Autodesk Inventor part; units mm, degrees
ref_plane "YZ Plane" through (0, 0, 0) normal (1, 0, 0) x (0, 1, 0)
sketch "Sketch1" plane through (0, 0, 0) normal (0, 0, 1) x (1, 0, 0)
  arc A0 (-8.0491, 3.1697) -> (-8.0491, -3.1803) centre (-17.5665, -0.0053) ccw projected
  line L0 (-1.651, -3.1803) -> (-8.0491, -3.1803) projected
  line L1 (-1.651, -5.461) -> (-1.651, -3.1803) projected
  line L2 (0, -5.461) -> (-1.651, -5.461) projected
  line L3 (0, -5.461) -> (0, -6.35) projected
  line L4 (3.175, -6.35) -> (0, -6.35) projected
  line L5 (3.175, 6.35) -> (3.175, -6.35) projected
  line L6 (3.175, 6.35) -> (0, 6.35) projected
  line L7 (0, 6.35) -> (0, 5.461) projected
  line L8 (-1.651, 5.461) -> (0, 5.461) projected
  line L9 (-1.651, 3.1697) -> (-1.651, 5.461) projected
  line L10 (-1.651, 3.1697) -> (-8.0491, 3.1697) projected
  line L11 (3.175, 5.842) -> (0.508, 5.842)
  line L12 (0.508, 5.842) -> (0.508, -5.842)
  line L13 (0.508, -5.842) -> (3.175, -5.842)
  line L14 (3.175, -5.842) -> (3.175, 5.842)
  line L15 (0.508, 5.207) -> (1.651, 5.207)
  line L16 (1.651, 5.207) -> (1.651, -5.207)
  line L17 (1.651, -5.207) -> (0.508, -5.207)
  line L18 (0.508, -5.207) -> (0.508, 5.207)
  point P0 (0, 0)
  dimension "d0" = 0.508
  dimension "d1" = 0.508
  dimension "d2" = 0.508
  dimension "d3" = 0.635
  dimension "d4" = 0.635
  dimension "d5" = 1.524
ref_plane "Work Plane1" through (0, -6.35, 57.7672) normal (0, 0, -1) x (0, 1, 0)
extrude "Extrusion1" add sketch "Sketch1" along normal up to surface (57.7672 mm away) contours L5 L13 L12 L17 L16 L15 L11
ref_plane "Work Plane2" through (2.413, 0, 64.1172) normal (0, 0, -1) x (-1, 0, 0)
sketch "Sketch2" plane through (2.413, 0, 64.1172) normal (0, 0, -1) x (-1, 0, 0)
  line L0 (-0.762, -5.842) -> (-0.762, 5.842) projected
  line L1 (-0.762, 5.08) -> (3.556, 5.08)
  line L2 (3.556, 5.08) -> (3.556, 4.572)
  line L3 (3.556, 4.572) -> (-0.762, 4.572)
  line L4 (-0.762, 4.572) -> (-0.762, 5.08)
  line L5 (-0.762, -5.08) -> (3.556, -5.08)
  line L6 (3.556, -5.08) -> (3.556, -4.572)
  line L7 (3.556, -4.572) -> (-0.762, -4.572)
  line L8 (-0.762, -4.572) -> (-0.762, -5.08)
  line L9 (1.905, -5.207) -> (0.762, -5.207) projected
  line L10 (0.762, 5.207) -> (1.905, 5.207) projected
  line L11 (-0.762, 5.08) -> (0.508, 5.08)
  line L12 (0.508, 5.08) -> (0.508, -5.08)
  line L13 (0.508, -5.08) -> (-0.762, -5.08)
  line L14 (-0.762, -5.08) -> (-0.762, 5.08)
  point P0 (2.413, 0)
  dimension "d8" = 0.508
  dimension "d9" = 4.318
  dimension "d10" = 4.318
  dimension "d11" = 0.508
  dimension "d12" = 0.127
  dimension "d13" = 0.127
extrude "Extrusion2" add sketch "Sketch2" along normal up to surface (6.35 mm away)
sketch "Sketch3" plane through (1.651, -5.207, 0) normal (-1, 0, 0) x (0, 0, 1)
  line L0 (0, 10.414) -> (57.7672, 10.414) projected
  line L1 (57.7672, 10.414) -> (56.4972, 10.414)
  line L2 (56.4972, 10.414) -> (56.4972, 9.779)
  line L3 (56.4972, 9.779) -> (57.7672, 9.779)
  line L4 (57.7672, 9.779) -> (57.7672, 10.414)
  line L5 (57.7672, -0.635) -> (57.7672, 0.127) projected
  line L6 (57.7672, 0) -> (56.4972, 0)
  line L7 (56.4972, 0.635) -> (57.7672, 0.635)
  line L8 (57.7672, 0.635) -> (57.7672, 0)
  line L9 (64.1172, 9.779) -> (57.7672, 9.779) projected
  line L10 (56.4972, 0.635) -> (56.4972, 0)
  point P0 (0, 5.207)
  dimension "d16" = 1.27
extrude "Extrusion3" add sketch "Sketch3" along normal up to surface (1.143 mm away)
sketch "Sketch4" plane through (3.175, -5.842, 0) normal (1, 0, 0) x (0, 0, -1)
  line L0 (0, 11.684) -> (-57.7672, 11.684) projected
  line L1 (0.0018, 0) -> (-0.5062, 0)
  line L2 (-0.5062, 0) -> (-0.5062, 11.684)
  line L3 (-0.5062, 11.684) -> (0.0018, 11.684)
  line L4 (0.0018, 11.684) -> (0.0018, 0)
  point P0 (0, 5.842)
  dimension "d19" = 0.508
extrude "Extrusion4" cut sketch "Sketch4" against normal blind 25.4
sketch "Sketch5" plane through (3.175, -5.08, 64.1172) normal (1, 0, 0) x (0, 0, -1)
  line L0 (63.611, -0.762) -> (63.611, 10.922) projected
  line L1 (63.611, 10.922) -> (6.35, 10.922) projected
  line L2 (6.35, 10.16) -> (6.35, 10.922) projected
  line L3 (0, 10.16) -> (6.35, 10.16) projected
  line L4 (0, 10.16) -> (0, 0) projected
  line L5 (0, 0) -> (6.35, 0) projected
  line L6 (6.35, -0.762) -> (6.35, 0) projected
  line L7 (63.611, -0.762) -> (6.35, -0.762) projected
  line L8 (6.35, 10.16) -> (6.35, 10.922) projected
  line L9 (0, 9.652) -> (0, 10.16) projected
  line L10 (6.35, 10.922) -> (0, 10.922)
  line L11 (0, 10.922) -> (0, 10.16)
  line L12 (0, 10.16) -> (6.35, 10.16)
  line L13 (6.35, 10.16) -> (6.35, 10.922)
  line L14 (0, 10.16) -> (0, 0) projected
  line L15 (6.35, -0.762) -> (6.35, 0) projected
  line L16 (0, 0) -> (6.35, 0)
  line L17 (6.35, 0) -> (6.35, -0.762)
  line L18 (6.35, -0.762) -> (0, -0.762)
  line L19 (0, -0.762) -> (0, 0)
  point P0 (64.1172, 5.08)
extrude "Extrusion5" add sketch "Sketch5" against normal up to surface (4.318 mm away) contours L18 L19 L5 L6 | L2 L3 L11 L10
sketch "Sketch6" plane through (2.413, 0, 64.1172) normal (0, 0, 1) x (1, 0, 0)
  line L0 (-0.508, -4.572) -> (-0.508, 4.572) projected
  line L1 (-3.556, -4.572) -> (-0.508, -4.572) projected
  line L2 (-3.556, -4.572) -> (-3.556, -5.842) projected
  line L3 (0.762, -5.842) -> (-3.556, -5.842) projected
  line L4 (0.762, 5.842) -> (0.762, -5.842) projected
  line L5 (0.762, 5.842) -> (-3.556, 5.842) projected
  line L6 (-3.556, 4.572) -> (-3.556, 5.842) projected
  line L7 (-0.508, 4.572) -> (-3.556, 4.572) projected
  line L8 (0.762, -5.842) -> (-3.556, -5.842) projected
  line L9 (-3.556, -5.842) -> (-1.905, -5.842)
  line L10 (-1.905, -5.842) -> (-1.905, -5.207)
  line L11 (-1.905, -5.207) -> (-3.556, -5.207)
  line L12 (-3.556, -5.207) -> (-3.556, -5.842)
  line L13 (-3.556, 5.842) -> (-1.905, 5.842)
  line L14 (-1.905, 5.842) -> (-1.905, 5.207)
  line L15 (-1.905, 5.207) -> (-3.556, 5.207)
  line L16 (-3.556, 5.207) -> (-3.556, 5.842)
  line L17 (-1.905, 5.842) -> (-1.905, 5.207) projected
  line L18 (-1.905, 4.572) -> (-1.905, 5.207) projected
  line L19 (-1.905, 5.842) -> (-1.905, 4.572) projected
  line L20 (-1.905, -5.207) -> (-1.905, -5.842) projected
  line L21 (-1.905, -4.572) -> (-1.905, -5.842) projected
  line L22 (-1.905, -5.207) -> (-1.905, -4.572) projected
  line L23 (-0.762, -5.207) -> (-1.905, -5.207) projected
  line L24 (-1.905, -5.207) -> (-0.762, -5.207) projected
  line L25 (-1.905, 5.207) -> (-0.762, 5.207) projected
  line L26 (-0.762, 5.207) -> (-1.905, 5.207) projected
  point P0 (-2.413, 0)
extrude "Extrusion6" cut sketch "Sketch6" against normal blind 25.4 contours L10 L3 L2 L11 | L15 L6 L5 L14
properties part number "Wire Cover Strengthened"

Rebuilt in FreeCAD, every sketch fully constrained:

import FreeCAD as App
import Part
import Sketcher

V = App.Vector
Q = App.Units.Quantity

doc = App.newDocument("Part")
body = doc.addObject("PartDesign::Body", "Body")

# Sketch on XY plane
sketch1 = doc.addObject("Sketcher::SketchObject", "Sketch")
body.addObject(sketch1)
sketch1.AttachmentSupport = (doc.XY_Plane, [""])
sketch1.MapMode = "FlatFace"
sketch1.addGeometry([
    Part.LineSegment(V(3.2, -5.8, 0), V(3.2, 5.8, 0)),  # 0
    Part.LineSegment(V(3.2, 5.8, 0), V(0.5, 5.8, 0)),  # 1
    Part.LineSegment(V(0.5, 5.8, 0), V(0.5, 5.2, 0)),  # 2
    Part.LineSegment(V(0.5, 5.2, 0), V(1.7, 5.2, 0)),  # 3
    Part.LineSegment(V(1.7, 5.2, 0), V(1.7, -5.2, 0)),  # 4
    Part.LineSegment(V(1.7, -5.2, 0), V(0.5, -5.2, 0)),  # 5
    Part.LineSegment(V(0.5, -5.2, 0), V(0.5, -5.8, 0)),  # 6
    Part.LineSegment(V(0.5, -5.8, 0), V(3.2, -5.8, 0)),  # 7
], False)
sketch1.addConstraint([
    Sketcher.Constraint("Coincident", 0, 2, 1, 1),
    Sketcher.Constraint("Coincident", 1, 2, 2, 1),
    Sketcher.Constraint("Coincident", 2, 2, 3, 1),
    Sketcher.Constraint("Coincident", 3, 2, 4, 1),
    Sketcher.Constraint("Coincident", 4, 2, 5, 1),
    Sketcher.Constraint("Coincident", 5, 2, 6, 1),
    Sketcher.Constraint("Coincident", 6, 2, 7, 1),
    Sketcher.Constraint("Coincident", 7, 2, 0, 1),
    Sketcher.Constraint("Vertical", 0),
    Sketcher.Constraint("Horizontal", 1),
    Sketcher.Constraint("Vertical", 2),
    Sketcher.Constraint("Horizontal", 3),
    Sketcher.Constraint("Vertical", 4),
    Sketcher.Constraint("Horizontal", 5),
    Sketcher.Constraint("Vertical", 6),
    Sketcher.Constraint("Horizontal", 7),
    Sketcher.Constraint("Symmetric", 2, 2, 5, 2, -1),
    Sketcher.Constraint("Equal", 2, 6),
    Sketcher.Constraint("DistanceY", 2, 2, 2, 1, Q("0.025 in")),
    Sketcher.Constraint("DistanceX", -1, 1, 1, 2, Q("0.02 in")),
    Sketcher.Constraint("DistanceX", 3, 2, 0, 2, Q("0.06 in")),
    Sketcher.Constraint("DistanceY", 0, 1, 0, 2, Q("0.46 in")),
    Sketcher.Constraint("DistanceX", 1, 2, 1, 1, Q("0.105 in")),
])
pad1 = doc.addObject("PartDesign::Pad", "Pad")
body.addObject(pad1)
pad1.Profile = sketch1
pad1.Length = Q("2.2742992 in")

# Sketch on XY plane
sketch2 = doc.addObject("Sketcher::SketchObject", "Sketch001")
body.addObject(sketch2)
sketch2.AttachmentSupport = (doc.XY_Plane, [""])
sketch2.MapMode = "FlatFace"
sketch2.AttachmentOffset = App.Placement(V(0, 0, 2.5242992 * 25.4), App.Rotation())
sketch2.addGeometry([
    Part.LineSegment(V(3.2, -5.1, 0), V(-1.1, -5.1, 0)),  # 0
    Part.LineSegment(V(-1.1, -5.1, 0), V(-1.1, -4.6, 0)),  # 1
    Part.LineSegment(V(-1.1, -4.6, 0), V(1.9, -4.6, 0)),  # 2
    Part.LineSegment(V(1.9, -4.6, 0), V(1.9, 4.6, 0)),  # 3
    Part.LineSegment(V(1.9, 4.6, 0), V(-1.1, 4.6, 0)),  # 4
    Part.LineSegment(V(-1.1, 4.6, 0), V(-1.1, 5.1, 0)),  # 5
    Part.LineSegment(V(-1.1, 5.1, 0), V(3.2, 5.1, 0)),  # 6
    Part.LineSegment(V(3.2, 5.1, 0), V(3.2, -5.1, 0)),  # 7
], False)
sketch2.addConstraint([
    Sketcher.Constraint("Coincident", 0, 2, 1, 1),
    Sketcher.Constraint("Coincident", 1, 2, 2, 1),
    Sketcher.Constraint("Coincident", 2, 2, 3, 1),
    Sketcher.Constraint("Coincident", 3, 2, 4, 1),
    Sketcher.Constraint("Coincident", 4, 2, 5, 1),
    Sketcher.Constraint("Coincident", 5, 2, 6, 1),
    Sketcher.Constraint("Coincident", 6, 2, 7, 1),
    Sketcher.Constraint("Coincident", 7, 2, 0, 1),
    Sketcher.Constraint("Horizontal", 0),
    Sketcher.Constraint("Vertical", 1),
    Sketcher.Constraint("Horizontal", 2),
    Sketcher.Constraint("Vertical", 3),
    Sketcher.Constraint("Horizontal", 4),
    Sketcher.Constraint("Vertical", 5),
    Sketcher.Constraint("Horizontal", 6),
    Sketcher.Constraint("Vertical", 7),
    Sketcher.Constraint("Symmetric", 1, 2, 4, 2, -1),
    Sketcher.Constraint("Equal", 1, 5),
    Sketcher.Constraint("DistanceX", 0, 2, 0, 1, Q("0.17 in")),
    Sketcher.Constraint("DistanceY", 1, 1, 1, 2, Q("0.02 in")),
    Sketcher.Constraint("DistanceY", 7, 2, 7, 1, Q("0.4 in")),
    Sketcher.Constraint("DistanceX", 2, 1, 2, 2, Q("0.12 in")),
    Sketcher.Constraint("DistanceX", 0, 2, -1, 1, Q("0.045 in")),
])
pad2 = doc.addObject("PartDesign::Pad", "Pad001")
body.addObject(pad2)
pad2.Profile = sketch2
pad2.Length = Q("0.25 in")
pad2.Reversed = True

# Sketch on YZ plane
sketch3 = doc.addObject("Sketcher::SketchObject", "Sketch002")
body.addObject(sketch3)
sketch3.AttachmentSupport = (doc.YZ_Plane, [""])
sketch3.MapMode = "FlatFace"
sketch3.AttachmentOffset = App.Placement(V(0, 0, 0.065 * 25.4), App.Rotation())
sketch3.addGeometry([
    Part.LineSegment(V(5.2, 57.8, 0), V(5.2, 56.5, 0)),  # 0
    Part.LineSegment(V(5.2, 56.5, 0), V(4.6, 56.5, 0)),  # 1
    Part.LineSegment(V(4.6, 56.5, 0), V(4.6, 57.8, 0)),  # 2
    Part.LineSegment(V(4.6, 57.8, 0), V(5.2, 57.8, 0)),  # 3
    Part.LineSegment(V(-5.2, 56.5, 0), V(-5.2, 57.8, 0)),  # 4
    Part.LineSegment(V(-5.2, 57.8, 0), V(-4.6, 57.8, 0)),  # 5
    Part.LineSegment(V(-4.6, 57.8, 0), V(-4.6, 56.5, 0)),  # 6
    Part.LineSegment(V(-4.6, 56.5, 0), V(-5.2, 56.5, 0)),  # 7
], False)
sketch3.addConstraint([
    Sketcher.Constraint("Coincident", 0, 2, 1, 1),
    Sketcher.Constraint("Coincident", 1, 2, 2, 1),
    Sketcher.Constraint("Coincident", 2, 2, 3, 1),
    Sketcher.Constraint("Coincident", 3, 2, 0, 1),
    Sketcher.Constraint("Coincident", 4, 2, 5, 1),
    Sketcher.Constraint("Coincident", 5, 2, 6, 1),
    Sketcher.Constraint("Coincident", 6, 2, 7, 1),
    Sketcher.Constraint("Coincident", 7, 2, 4, 1),
    Sketcher.Constraint("Vertical", 0),
    Sketcher.Constraint("Horizontal", 1),
    Sketcher.Constraint("Vertical", 2),
    Sketcher.Constraint("Horizontal", 3),
    Sketcher.Constraint("Vertical", 4),
    Sketcher.Constraint("Horizontal", 5),
    Sketcher.Constraint("Vertical", 6),
    Sketcher.Constraint("Horizontal", 7),
    Sketcher.Constraint("Symmetric", 3, 2, 4, 2, -2),
    Sketcher.Constraint("Symmetric", 1, 2, 6, 2, -2),
    Sketcher.Constraint("DistanceY", 0, 2, 0, 1, Q("0.05 in")),
    Sketcher.Constraint("DistanceX", 1, 2, 1, 1, Q("0.025 in")),
    Sketcher.Constraint("DistanceX", -1, 1, 1, 2, Q("0.18 in")),
    Sketcher.Constraint("DistanceY", -1, 1, 0, 2, Q("2.2243 in")),
])
pad3 = doc.addObject("PartDesign::Pad", "Pad002")
body.addObject(pad3)
pad3.Profile = sketch3
pad3.Length = Q("0.045 in")
pad3.Reversed = True

# Sketch on YZ plane
sketch4 = doc.addObject("Sketcher::SketchObject", "Sketch003")
body.addObject(sketch4)
sketch4.AttachmentSupport = (doc.YZ_Plane, [""])
sketch4.MapMode = "FlatFace"
sketch4.AttachmentOffset = App.Placement(V(0, 0, 0.125 * 25.4), App.Rotation())
sketch4.addGeometry([
    Part.LineSegment(V(-5.8, 0, 0), V(5.8, 0, 0)),
    Part.LineSegment(V(5.8, 0, 0), V(5.8, 0.5, 0)),
    Part.LineSegment(V(5.8, 0.5, 0), V(-5.8, 0.5, 0)),
    Part.LineSegment(V(-5.8, 0.5, 0), V(-5.8, 0, 0)),
], False)
sketch4.addConstraint([
    Sketcher.Constraint("Coincident", 0, 2, 1, 1),
    Sketcher.Constraint("Coincident", 1, 2, 2, 1),
    Sketcher.Constraint("Coincident", 2, 2, 3, 1),
    Sketcher.Constraint("Coincident", 3, 2, 0, 1),
    Sketcher.Constraint("Vertical", 1),
    Sketcher.Constraint("Horizontal", 2),
    Sketcher.Constraint("Vertical", 3),
    Sketcher.Constraint("PointOnObject", 0, 2, -1),
    Sketcher.Constraint("DistanceY", 3, 2, 3, 1, Q("0.02 in")),
    Sketcher.Constraint("DistanceX", 2, 2, 2, 1, Q("0.46 in")),
    Sketcher.Constraint("DistanceX", -1, 1, 0, 2, Q("0.23 in")),
    Sketcher.Constraint("Angle", 0, Q("0.0088 deg")),
])
pocket1 = doc.addObject("PartDesign::Pocket", "Pocket")
body.addObject(pocket1)
pocket1.Profile = sketch4
pocket1.Length = Q("1 in")

# Sketch on YZ plane
sketch5 = doc.addObject("Sketcher::SketchObject", "Sketch004")
body.addObject(sketch5)
sketch5.AttachmentSupport = (doc.YZ_Plane, [""])
sketch5.MapMode = "FlatFace"
sketch5.AttachmentOffset = App.Placement(V(0, 0, 0.125 * 25.4), App.Rotation())
sketch5.addGeometry([
    Part.LineSegment(V(-5.8, 64.1, 0), V(-5.8, 57.8, 0)),  # 0
    Part.LineSegment(V(-5.8, 57.8, 0), V(-5.1, 57.8, 0)),  # 1
    Part.LineSegment(V(-5.1, 57.8, 0), V(-5.1, 64.1, 0)),  # 2
    Part.LineSegment(V(-5.1, 64.1, 0), V(-5.8, 64.1, 0)),  # 3
    Part.LineSegment(V(5.1, 57.8, 0), V(5.8, 57.8, 0)),  # 4
    Part.LineSegment(V(5.8, 57.8, 0), V(5.8, 64.1, 0)),  # 5
    Part.LineSegment(V(5.8, 64.1, 0), V(5.1, 64.1, 0)),  # 6
    Part.LineSegment(V(5.1, 64.1, 0), V(5.1, 57.8, 0)),  # 7
], False)
sketch5.addConstraint([
    Sketcher.Constraint("Coincident", 0, 2, 1, 1),
    Sketcher.Constraint("Coincident", 1, 2, 2, 1),
    Sketcher.Constraint("Coincident", 2, 2, 3, 1),
    Sketcher.Constraint("Coincident", 3, 2, 0, 1),
    Sketcher.Constraint("Coincident", 4, 2, 5, 1),
    Sketcher.Constraint("Coincident", 5, 2, 6, 1),
    Sketcher.Constraint("Coincident", 6, 2, 7, 1),
    Sketcher.Constraint("Coincident", 7, 2, 4, 1),
    Sketcher.Constraint("Vertical", 0),
    Sketcher.Constraint("Horizontal", 1),
    Sketcher.Constraint("Vertical", 2),
    Sketcher.Constraint("Horizontal", 3),
    Sketcher.Constraint("Horizontal", 4),
    Sketcher.Constraint("Vertical", 5),
    Sketcher.Constraint("Horizontal", 6),
    Sketcher.Constraint("Vertical", 7),
    Sketcher.Constraint("Symmetric", 0, 2, 4, 2, -2),
    Sketcher.Constraint("Symmetric", 2, 2, 6, 2, -2),
    Sketcher.Constraint("DistanceX", 1, 1, 1, 2, Q("0.03 in")),
    Sketcher.Constraint("DistanceY", 0, 2, 0, 1, Q("0.25 in")),
    Sketcher.Constraint("DistanceX", 1, 2, -1, 1, Q("0.2 in")),
    Sketcher.Constraint("DistanceY", -1, 1, 0, 2, Q("2.2743 in")),
])
pad4 = doc.addObject("PartDesign::Pad", "Pad003")
body.addObject(pad4)
pad4.Profile = sketch5
pad4.Length = Q("0.17 in")
pad4.Reversed = True

# Sketch on XY plane
sketch6 = doc.addObject("Sketcher::SketchObject", "Sketch005")
body.addObject(sketch6)
sketch6.AttachmentSupport = (doc.XY_Plane, [""])
sketch6.MapMode = "FlatFace"
sketch6.AttachmentOffset = App.Placement(V(0, 0, 2.5242992 * 25.4), App.Rotation())
sketch6.addGeometry([
    Part.LineSegment(V(0.5, -5.8, 0), V(0.5, -5.2, 0)),  # 0
    Part.LineSegment(V(0.5, -5.2, 0), V(-1.1, -5.2, 0)),  # 1
    Part.LineSegment(V(-1.1, -5.2, 0), V(-1.1, -5.8, 0)),  # 2
    Part.LineSegment(V(-1.1, -5.8, 0), V(0.5, -5.8, 0)),  # 3
    Part.LineSegment(V(-1.1, 5.2, 0), V(0.5, 5.2, 0)),  # 4
    Part.LineSegment(V(0.5, 5.2, 0), V(0.5, 5.8, 0)),  # 5
    Part.LineSegment(V(0.5, 5.8, 0), V(-1.1, 5.8, 0)),  # 6
    Part.LineSegment(V(-1.1, 5.8, 0), V(-1.1, 5.2, 0)),  # 7
], False)
sketch6.addConstraint([
    Sketcher.Constraint("Coincident", 0, 2, 1, 1),
    Sketcher.Constraint("Coincident", 1, 2, 2, 1),
    Sketcher.Constraint("Coincident", 2, 2, 3, 1),
    Sketcher.Constraint("Coincident", 3, 2, 0, 1),
    Sketcher.Constraint("Coincident", 4, 2, 5, 1),
    Sketcher.Constraint("Coincident", 5, 2, 6, 1),
    Sketcher.Constraint("Coincident", 6, 2, 7, 1),
    Sketcher.Constraint("Coincident", 7, 2, 4, 1),
    Sketcher.Constraint("Vertical", 0),
    Sketcher.Constraint("Horizontal", 1),
    Sketcher.Constraint("Vertical", 2),
    Sketcher.Constraint("Horizontal", 3),
    Sketcher.Constraint("Horizontal", 4),
    Sketcher.Constraint("Vertical", 5),
    Sketcher.Constraint("Horizontal", 6),
    Sketcher.Constraint("Vertical", 7),
    Sketcher.Constraint("Symmetric", 0, 2, 4, 2, -1),
    Sketcher.Constraint("Symmetric", 2, 2, 6, 2, -1),
    Sketcher.Constraint("DistanceX", 1, 2, 1, 1, Q("0.065 in")),
    Sketcher.Constraint("DistanceY", 0, 1, 0, 2, Q("0.025 in")),
    Sketcher.Constraint("DistanceX", -1, 1, 0, 2, Q("0.02 in")),
    Sketcher.Constraint("DistanceY", 2, 2, -1, 1, Q("0.23 in")),
])
pocket2 = doc.addObject("PartDesign::Pocket", "Pocket001")
body.addObject(pocket2)
pocket2.Profile = sketch6
pocket2.Length = Q("1 in")

doc.recompute()
